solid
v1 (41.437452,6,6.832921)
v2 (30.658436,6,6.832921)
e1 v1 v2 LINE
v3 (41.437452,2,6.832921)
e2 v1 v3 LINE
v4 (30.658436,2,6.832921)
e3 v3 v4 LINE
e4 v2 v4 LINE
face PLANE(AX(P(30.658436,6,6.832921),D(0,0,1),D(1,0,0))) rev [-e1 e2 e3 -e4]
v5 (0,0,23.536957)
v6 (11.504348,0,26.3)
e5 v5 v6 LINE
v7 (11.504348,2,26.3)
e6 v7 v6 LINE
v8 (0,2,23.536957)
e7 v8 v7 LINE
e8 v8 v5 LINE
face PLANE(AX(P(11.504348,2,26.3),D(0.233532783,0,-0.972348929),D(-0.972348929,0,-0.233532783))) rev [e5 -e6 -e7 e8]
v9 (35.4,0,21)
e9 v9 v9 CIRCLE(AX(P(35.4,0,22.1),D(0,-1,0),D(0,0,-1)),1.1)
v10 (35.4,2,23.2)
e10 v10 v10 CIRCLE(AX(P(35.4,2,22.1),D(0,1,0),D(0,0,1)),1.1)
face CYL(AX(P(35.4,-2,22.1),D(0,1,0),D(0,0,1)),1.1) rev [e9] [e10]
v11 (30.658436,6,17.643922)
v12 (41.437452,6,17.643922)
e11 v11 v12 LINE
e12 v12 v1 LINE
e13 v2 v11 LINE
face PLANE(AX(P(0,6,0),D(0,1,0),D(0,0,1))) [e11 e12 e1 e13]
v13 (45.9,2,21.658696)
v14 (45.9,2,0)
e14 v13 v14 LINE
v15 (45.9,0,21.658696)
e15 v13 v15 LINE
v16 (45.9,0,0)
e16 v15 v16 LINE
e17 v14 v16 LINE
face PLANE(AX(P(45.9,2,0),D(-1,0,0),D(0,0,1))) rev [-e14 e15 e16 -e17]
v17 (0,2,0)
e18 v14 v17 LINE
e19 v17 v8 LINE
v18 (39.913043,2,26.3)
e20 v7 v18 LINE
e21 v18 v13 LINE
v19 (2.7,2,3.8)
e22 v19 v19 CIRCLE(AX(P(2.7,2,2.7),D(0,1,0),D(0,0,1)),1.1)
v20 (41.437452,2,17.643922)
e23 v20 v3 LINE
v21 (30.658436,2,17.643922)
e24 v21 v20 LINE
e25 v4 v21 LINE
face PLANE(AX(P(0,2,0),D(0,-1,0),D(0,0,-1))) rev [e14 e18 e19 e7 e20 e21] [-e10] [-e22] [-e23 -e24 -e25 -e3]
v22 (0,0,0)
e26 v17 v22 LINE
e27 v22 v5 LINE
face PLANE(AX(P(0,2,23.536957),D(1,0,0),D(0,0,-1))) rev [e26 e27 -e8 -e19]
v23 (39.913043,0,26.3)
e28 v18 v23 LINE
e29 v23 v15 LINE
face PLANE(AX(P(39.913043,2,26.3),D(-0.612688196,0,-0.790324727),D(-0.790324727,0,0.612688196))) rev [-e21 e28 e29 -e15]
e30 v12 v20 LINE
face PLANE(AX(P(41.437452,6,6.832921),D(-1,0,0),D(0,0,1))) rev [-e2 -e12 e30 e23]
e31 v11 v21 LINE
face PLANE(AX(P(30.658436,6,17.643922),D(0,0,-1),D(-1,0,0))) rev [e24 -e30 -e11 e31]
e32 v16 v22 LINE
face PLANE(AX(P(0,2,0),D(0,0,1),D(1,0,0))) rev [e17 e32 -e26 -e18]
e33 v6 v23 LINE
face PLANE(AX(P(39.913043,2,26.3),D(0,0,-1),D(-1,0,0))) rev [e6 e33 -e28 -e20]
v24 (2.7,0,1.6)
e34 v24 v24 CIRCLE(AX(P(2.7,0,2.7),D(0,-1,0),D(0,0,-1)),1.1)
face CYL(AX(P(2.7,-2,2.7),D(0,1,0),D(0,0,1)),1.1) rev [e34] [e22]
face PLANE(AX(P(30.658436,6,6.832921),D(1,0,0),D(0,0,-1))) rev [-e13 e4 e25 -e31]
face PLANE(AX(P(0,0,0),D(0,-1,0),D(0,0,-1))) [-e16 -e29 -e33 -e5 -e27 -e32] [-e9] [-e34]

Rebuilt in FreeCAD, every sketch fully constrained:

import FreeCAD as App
import Part
import Sketcher
from FreeCAD import Vector


def add_polygon(sketch, points):
    """Adds a closed chain of lines whose ends are joined by coincident constraints."""
    first, n = sketch.GeometryCount, len(points)
    for a, b in zip(points, points[1:] + points[:1]):
        sketch.addGeometry(Part.LineSegment(App.Vector(*a, 0), App.Vector(*b, 0)), False)
    for i in range(n):
        sketch.addConstraint(Sketcher.Constraint("Coincident", first + i, 2, first + (i + 1) % n, 1))

doc = App.newDocument("Part")
params = doc.addObject("Spreadsheet::Sheet", "Params")
for row, (alias, value) in enumerate([
    ("sketch1_width", "45.9 mm"),
    ("pad1_length", "2 mm"),
    ("pad2_length", "4 mm"),
    ("sketch3_diameter", "2.2 mm"),
    ("pocket1_length", "4 mm"),
], start=1):
    params.set(f"A{row}", alias)
    params.set(f"B{row}", "=" + value)
    params.setAlias(f"B{row}", alias)

body = doc.addObject("PartDesign::Body", "Body")

# Sketch on XZ plane
sketch1 = body.newObject("Sketcher::SketchObject", "Sketch")
sketch1.AttachmentSupport = (doc.getObject("XZ_Plane"), [""])
sketch1.MapMode = "FlatFace"
add_polygon(sketch1, [(45.9, 0), (0, 0), (0, 23.536957), (11.504348, 26.3), (39.913043, 26.3), (45.9, 21.658696)])  # lines 0-5
sketch1.addConstraint(Sketcher.Constraint("Horizontal", 0))
sketch1.addConstraint(Sketcher.Constraint("Vertical", 1))
sketch1.addConstraint(Sketcher.Constraint("Horizontal", 3))
sketch1.addConstraint(Sketcher.Constraint("Vertical", 5))
sketch1.addConstraint(Sketcher.Constraint("Coincident", 0, 2, -1, 1))
sketch1.addConstraint(Sketcher.Constraint("DistanceX", 0, 2, 0, 1, 45.9))
sketch1.addConstraint(Sketcher.Constraint("DistanceY", -1, 1, 2, 2, 26.3))
sketch1.addConstraint(Sketcher.Constraint("Distance", 2, 11.831502))
sketch1.addConstraint(Sketcher.Constraint("DistanceX", 3, 1, 3, 2, 28.408696))
sketch1.addConstraint(Sketcher.Constraint("DistanceY", 1, 1, 1, 2, 23.536957))
sketch1.addConstraint(Sketcher.Constraint("DistanceY", 5, 2, 5, 1, 21.658696))
sketch1.setExpression("Constraints[11]", "Params.sketch1_width")
pad1 = body.newObject("PartDesign::Pad", "Pad")
pad1.Profile = sketch1
pad1.setExpression("Length", "Params.pad1_length")
pad1.Reversed = True

# Sketch on XZ plane
sketch2 = body.newObject("Sketcher::SketchObject", "Sketch001")
sketch2.AttachmentSupport = (doc.getObject("XZ_Plane"), [""])
sketch2.MapMode = "FlatFace"
sketch2.AttachmentOffset = App.Placement(Vector(0, 0, -2), App.Rotation())
add_polygon(sketch2, [(30.658436, 6.832921), (30.658436, 17.643922), (41.437452, 17.643922), (41.437452, 6.832921)])  # lines 0-3
sketch2.addConstraint(Sketcher.Constraint("Vertical", 0))
sketch2.addConstraint(Sketcher.Constraint("Horizontal", 1))
sketch2.addConstraint(Sketcher.Constraint("Vertical", 2))
sketch2.addConstraint(Sketcher.Constraint("Horizontal", 3))
sketch2.addConstraint(Sketcher.Constraint("DistanceY", 0, 1, 0, 2, 10.811001))
sketch2.addConstraint(Sketcher.Constraint("DistanceX", 1, 1, 1, 2, 10.779016))
sketch2.addConstraint(Sketcher.Constraint("DistanceX", -1, 1, 1, 2, 41.437452))
sketch2.addConstraint(Sketcher.Constraint("DistanceY", -1, 1, 2, 2, 6.832921))
pad2 = body.newObject("PartDesign::Pad", "Pad001")
pad2.Profile = sketch2
pad2.setExpression("Length", "Params.pad2_length")
pad2.Reversed = True

# Sketch on XZ plane
sketch3 = body.newObject("Sketcher::SketchObject", "Sketch002")
sketch3.AttachmentSupport = (doc.getObject("XZ_Plane"), [""])
sketch3.MapMode = "FlatFace"
sketch3.AttachmentOffset = App.Placement(Vector(0, 0, -2), App.Rotation())
sketch3.addGeometry(Part.Circle(Vector(2.7, 2.7, 0), Vector(0, 0, 1), 1.1), False)
sketch3.addGeometry(Part.Circle(Vector(35.4, 22.1, 0), Vector(0, 0, 1), 1.1), False)
sketch3.addConstraint(Sketcher.Constraint("Equal", 0, 1))
sketch3.addConstraint(Sketcher.Constraint("Diameter", 0, 2.2))
sketch3.addConstraint(Sketcher.Constraint("DistanceX", -1, 1, 0, 3, 2.7))
sketch3.addConstraint(Sketcher.Constraint("DistanceY", -1, 1, 0, 3, 2.7))
sketch3.addConstraint(Sketcher.Constraint("DistanceX", -1, 1, 1, 3, 35.4))
sketch3.addConstraint(Sketcher.Constraint("DistanceY", -1, 1, 1, 3, 22.1))
sketch3.setExpression("Constraints[1]", "Params.sketch3_diameter")
pocket1 = body.newObject("PartDesign::Pocket", "Pocket")
pocket1.Profile = sketch3
pocket1.setExpression("Length", "Params.pocket1_length")
pocket1.Reversed = True

doc.recompute()
